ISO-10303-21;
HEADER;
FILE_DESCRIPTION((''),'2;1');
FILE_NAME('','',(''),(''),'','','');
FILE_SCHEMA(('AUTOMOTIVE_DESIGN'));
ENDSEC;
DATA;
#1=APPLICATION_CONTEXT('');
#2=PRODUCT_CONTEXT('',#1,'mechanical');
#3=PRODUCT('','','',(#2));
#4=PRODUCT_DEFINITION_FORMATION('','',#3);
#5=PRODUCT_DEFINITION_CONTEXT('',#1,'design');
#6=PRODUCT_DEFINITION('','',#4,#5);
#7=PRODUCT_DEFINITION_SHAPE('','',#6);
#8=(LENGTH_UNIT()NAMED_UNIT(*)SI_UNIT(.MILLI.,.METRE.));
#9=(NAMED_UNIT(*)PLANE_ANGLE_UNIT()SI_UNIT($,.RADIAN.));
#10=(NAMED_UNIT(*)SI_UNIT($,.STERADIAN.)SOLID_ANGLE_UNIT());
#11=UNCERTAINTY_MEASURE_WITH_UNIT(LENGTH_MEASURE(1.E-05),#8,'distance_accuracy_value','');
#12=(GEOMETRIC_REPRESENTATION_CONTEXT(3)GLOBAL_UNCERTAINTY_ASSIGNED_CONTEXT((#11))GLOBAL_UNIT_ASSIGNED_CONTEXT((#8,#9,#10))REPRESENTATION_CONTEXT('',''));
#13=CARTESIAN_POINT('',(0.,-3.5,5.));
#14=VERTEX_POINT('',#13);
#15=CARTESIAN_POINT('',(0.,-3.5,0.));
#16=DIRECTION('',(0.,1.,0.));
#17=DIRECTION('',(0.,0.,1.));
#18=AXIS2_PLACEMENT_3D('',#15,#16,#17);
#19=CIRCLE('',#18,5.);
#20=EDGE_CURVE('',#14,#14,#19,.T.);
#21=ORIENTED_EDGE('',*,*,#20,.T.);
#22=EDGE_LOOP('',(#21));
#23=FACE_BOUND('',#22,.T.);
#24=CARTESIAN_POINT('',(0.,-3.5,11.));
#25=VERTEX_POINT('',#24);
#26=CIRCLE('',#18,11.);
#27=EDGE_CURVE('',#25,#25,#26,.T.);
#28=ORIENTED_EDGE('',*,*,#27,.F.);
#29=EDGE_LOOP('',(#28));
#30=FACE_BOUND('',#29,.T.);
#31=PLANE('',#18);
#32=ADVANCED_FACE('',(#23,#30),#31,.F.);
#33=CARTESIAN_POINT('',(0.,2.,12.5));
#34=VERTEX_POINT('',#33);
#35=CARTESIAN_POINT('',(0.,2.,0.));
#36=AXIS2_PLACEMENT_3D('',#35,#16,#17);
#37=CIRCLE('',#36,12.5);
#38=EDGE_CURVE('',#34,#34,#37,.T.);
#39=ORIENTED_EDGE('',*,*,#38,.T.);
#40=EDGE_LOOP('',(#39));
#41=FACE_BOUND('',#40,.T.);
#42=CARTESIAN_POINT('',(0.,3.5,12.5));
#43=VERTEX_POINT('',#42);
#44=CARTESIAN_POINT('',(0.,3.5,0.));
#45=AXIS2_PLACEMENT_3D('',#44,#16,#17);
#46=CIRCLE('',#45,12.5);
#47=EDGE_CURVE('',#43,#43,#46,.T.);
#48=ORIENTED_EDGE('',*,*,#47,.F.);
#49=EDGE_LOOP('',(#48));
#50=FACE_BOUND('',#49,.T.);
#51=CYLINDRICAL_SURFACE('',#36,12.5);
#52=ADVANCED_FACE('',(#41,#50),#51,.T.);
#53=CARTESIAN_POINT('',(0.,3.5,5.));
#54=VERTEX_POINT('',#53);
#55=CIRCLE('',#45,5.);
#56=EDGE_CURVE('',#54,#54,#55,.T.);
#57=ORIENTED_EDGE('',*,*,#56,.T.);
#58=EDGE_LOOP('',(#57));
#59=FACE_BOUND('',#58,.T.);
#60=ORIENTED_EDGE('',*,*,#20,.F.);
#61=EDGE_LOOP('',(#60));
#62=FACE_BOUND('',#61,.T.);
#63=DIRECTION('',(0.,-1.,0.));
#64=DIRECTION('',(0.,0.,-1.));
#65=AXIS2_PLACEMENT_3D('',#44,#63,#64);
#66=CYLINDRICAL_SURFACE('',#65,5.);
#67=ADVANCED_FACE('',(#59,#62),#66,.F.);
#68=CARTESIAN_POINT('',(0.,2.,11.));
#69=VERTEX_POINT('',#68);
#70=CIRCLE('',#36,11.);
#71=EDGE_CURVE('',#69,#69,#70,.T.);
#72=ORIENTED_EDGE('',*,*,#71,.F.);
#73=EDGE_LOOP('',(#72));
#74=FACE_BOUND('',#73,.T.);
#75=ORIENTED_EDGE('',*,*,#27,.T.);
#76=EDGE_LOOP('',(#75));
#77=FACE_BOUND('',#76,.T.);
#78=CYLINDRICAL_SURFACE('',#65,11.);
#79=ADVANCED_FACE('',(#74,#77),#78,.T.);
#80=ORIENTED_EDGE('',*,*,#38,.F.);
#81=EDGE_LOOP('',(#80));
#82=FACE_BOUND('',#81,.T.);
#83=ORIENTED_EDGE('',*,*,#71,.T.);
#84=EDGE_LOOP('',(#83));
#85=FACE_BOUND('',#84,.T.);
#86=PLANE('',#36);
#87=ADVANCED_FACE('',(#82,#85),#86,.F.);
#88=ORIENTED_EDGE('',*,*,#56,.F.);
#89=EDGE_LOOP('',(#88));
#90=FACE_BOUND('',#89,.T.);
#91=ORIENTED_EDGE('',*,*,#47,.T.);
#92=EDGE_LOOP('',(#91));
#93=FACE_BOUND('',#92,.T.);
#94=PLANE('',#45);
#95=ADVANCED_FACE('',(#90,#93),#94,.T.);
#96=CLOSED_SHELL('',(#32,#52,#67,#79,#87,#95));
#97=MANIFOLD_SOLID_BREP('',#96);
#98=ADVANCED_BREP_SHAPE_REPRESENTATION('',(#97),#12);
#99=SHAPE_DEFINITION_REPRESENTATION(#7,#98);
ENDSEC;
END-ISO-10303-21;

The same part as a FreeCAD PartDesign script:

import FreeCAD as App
import Part
import Sketcher
Q = App.Units.Quantity

doc = App.newDocument("Part")
body = doc.addObject("PartDesign::Body", "Body")

# Sketch on XZ plane
sketch1 = doc.addObject("Sketcher::SketchObject", "Sketch")
body.addObject(sketch1)
sketch1.AttachmentSupport = (doc.XZ_Plane, [""])
sketch1.MapMode = "FlatFace"
sketch1.addGeometry([
    Part.Circle(App.Vector(0, 0, 0), App.Vector(0, 0, 1), 11),
    Part.Circle(App.Vector(0, 0, 0), App.Vector(0, 0, 1), 5),
], False)
sketch1.addConstraint([
    Sketcher.Constraint("Coincident", 0, 3, -1, 1),
    Sketcher.Constraint("Coincident", 1, 3, -1, 1),
    Sketcher.Constraint("Diameter", 0, Q("22 mm")),
    Sketcher.Constraint("Diameter", 1, Q("10 mm")),
])
pad1 = doc.addObject("PartDesign::Pad", "Pad")
body.addObject(pad1)
pad1.Profile = sketch1
pad1.Length = 7
pad1.Midplane = True

# Sketch on XZ plane
sketch2 = doc.addObject("Sketcher::SketchObject", "Sketch001")
body.addObject(sketch2)
sketch2.AttachmentSupport = (doc.XZ_Plane, [""])
sketch2.MapMode = "FlatFace"
sketch2.AttachmentOffset = App.Placement(App.Vector(0, 0, -3.5), App.Rotation())
sketch2.addGeometry([
    Part.Circle(App.Vector(0, 0, 0), App.Vector(0, 0, 1), 12),
    Part.Circle(App.Vector(0, 0, 0), App.Vector(0, 0, 1), 11),
], False)
sketch2.addConstraint([
    Sketcher.Constraint("Coincident", 0, 3, -1, 1),
    Sketcher.Constraint("Coincident", 1, 3, -1, 1),
    Sketcher.Constraint("Diameter", 0, Q("25 mm")),
    Sketcher.Constraint("Diameter", 1, Q("22 mm")),
])
pad2 = doc.addObject("PartDesign::Pad", "Pad001")
body.addObject(pad2)
pad2.Profile = sketch2
pad2.Length = 1.5

doc.recompute()
